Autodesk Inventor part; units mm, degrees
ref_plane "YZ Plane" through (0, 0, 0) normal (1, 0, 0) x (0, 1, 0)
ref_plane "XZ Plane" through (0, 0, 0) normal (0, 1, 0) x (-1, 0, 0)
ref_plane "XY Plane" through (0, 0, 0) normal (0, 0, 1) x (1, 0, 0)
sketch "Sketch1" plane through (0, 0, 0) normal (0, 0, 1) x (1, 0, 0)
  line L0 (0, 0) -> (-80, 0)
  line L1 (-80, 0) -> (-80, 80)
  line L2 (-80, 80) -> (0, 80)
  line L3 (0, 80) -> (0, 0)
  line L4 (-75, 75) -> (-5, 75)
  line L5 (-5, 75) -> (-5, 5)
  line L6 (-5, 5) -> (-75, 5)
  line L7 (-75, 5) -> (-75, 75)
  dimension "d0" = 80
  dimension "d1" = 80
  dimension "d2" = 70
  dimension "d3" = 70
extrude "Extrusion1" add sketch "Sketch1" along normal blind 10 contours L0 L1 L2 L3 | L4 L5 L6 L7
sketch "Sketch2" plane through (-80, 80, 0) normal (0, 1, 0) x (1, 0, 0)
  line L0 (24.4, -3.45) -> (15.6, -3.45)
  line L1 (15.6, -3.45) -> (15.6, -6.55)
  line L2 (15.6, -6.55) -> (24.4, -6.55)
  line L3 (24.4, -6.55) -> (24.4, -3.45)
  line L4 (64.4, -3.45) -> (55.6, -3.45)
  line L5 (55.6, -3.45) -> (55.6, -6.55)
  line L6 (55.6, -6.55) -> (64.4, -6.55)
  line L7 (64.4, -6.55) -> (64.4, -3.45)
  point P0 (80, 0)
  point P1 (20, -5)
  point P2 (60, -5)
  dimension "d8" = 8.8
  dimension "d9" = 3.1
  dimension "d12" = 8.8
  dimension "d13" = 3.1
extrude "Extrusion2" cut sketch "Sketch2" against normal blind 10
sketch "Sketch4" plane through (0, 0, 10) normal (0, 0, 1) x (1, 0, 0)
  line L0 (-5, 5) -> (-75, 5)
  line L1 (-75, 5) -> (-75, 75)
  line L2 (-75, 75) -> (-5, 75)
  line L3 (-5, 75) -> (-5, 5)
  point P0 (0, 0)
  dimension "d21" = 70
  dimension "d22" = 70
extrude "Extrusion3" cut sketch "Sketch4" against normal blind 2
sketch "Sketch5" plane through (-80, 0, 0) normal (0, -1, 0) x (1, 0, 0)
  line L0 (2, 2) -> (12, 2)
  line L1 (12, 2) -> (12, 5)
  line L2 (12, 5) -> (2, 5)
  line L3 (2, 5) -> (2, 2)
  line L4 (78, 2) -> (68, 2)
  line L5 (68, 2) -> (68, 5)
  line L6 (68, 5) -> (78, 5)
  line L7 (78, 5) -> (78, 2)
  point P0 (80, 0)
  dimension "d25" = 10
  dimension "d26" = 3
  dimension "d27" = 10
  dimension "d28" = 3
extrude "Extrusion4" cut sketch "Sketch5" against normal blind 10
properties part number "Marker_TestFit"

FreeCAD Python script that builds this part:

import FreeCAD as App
import Part
import Sketcher

V = App.Vector

doc = App.newDocument("Part")
body = doc.addObject("PartDesign::Body", "Body")

# Sketch on XY plane
sketch1 = body.newObject("Sketcher::SketchObject", "Sketch")
sketch1.AttachmentSupport = (doc.getObject("XY_Plane"), [""])
sketch1.MapMode = "FlatFace"
sketch1.addGeometry([
    Part.LineSegment(V(-80, 0, 0), V(0, 0, 0)),
    Part.LineSegment(V(0, 0, 0), V(0, 80, 0)),
    Part.LineSegment(V(0, 80, 0), V(-80, 80, 0)),
    Part.LineSegment(V(-80, 80, 0), V(-80, 0, 0)),
], False)
sketch1.addConstraint([
    Sketcher.Constraint("Coincident", 0, 2, 1, 1),
    Sketcher.Constraint("Coincident", 1, 2, 2, 1),
    Sketcher.Constraint("Coincident", 2, 2, 3, 1),
    Sketcher.Constraint("Coincident", 3, 2, 0, 1),
    Sketcher.Constraint("Horizontal", 0),
    Sketcher.Constraint("Vertical", 1),
    Sketcher.Constraint("Horizontal", 2),
    Sketcher.Constraint("Vertical", 3),
    Sketcher.Constraint("Coincident", 0, 2, -1, 1),
    Sketcher.Constraint("Equal", 2, 1),
    Sketcher.Constraint("DistanceX", 0, 1, 0, 2, 80.0),
])
pad1 = body.newObject("PartDesign::Pad", "Pad")
pad1.Profile = sketch1
pad1.Length = 10

# Sketch on XZ plane
sketch2 = body.newObject("Sketcher::SketchObject", "Sketch001")
sketch2.AttachmentSupport = (doc.getObject("XZ_Plane"), [""])
sketch2.MapMode = "FlatFace"
sketch2.AttachmentOffset = App.Placement(V(0, 0, -80), App.Rotation())
sketch2.addGeometry([
    Part.LineSegment(V(-55.6, 6.5, 0), V(-55.6, 3.5, 0)),  # 0
    Part.LineSegment(V(-55.6, 3.5, 0), V(-64.4, 3.5, 0)),  # 1
    Part.LineSegment(V(-64.4, 3.5, 0), V(-64.4, 6.5, 0)),  # 2
    Part.LineSegment(V(-64.4, 6.5, 0), V(-55.6, 6.5, 0)),  # 3
    Part.LineSegment(V(-15.6, 6.5, 0), V(-15.6, 3.5, 0)),  # 4
    Part.LineSegment(V(-15.6, 3.5, 0), V(-24.4, 3.5, 0)),  # 5
    Part.LineSegment(V(-24.4, 3.5, 0), V(-24.4, 6.5, 0)),  # 6
    Part.LineSegment(V(-24.4, 6.5, 0), V(-15.6, 6.5, 0)),  # 7
], False)
sketch2.addConstraint([
    Sketcher.Constraint("Coincident", 0, 2, 1, 1),
    Sketcher.Constraint("Coincident", 1, 2, 2, 1),
    Sketcher.Constraint("Coincident", 2, 2, 3, 1),
    Sketcher.Constraint("Coincident", 3, 2, 0, 1),
    Sketcher.Constraint("Coincident", 4, 2, 5, 1),
    Sketcher.Constraint("Coincident", 5, 2, 6, 1),
    Sketcher.Constraint("Coincident", 6, 2, 7, 1),
    Sketcher.Constraint("Coincident", 7, 2, 4, 1),
    Sketcher.Constraint("Vertical", 0),
    Sketcher.Constraint("Horizontal", 1),
    Sketcher.Constraint("Vertical", 2),
    Sketcher.Constraint("Horizontal", 3),
    Sketcher.Constraint("Vertical", 4),
    Sketcher.Constraint("Horizontal", 5),
    Sketcher.Constraint("Vertical", 6),
    Sketcher.Constraint("Horizontal", 7),
    Sketcher.Constraint("Horizontal", 1, 2, 4, 2),
    Sketcher.Constraint("Horizontal", 3, 2, 6, 2),
    Sketcher.Constraint("Equal", 3, 5),
    Sketcher.Constraint("DistanceX", 1, 2, 1, 1, 8.8),
    Sketcher.Constraint("DistanceY", 0, 2, 0, 1, 3.1),
    Sketcher.Constraint("DistanceX", 0, 2, 4, 2, 40.0),
    Sketcher.Constraint("DistanceX", 0, 2, -1, 1, 55.6),
    Sketcher.Constraint("DistanceY", -1, 1, 0, 2, 3.45),
])
pocket1 = body.newObject("PartDesign::Pocket", "Pocket")
pocket1.Profile = sketch2
pocket1.Length = 10
pocket1.Reversed = True

# Sketch on XY plane
sketch3 = body.newObject("Sketcher::SketchObject", "Sketch002")
sketch3.AttachmentSupport = (doc.getObject("XY_Plane"), [""])
sketch3.MapMode = "FlatFace"
sketch3.AttachmentOffset = App.Placement(V(0, 0, 10), App.Rotation())
sketch3.addGeometry([
    Part.LineSegment(V(-75, 5, 0), V(-5, 5, 0)),
    Part.LineSegment(V(-5, 5, 0), V(-5, 75, 0)),
    Part.LineSegment(V(-5, 75, 0), V(-75, 75, 0)),
    Part.LineSegment(V(-75, 75, 0), V(-75, 5, 0)),
], False)
sketch3.addConstraint([
    Sketcher.Constraint("Coincident", 0, 2, 1, 1),
    Sketcher.Constraint("Coincident", 1, 2, 2, 1),
    Sketcher.Constraint("Coincident", 2, 2, 3, 1),
    Sketcher.Constraint("Coincident", 3, 2, 0, 1),
    Sketcher.Constraint("Horizontal", 0),
    Sketcher.Constraint("Vertical", 1),
    Sketcher.Constraint("Horizontal", 2),
    Sketcher.Constraint("Vertical", 3),
    Sketcher.Constraint("Equal", 2, 1),
    Sketcher.Constraint("DistanceX", 0, 1, 0, 2, 70.0),
    Sketcher.Constraint("DistanceX", 0, 2, -1, 1, 5.0),
    Sketcher.Constraint("DistanceY", -1, 1, 0, 2, 5.0),
])
pocket2 = body.newObject("PartDesign::Pocket", "Pocket001")
pocket2.Profile = sketch3
pocket2.Length = 2

# Sketch on XZ plane
sketch4 = body.newObject("Sketcher::SketchObject", "Sketch003")
sketch4.AttachmentSupport = (doc.getObject("XZ_Plane"), [""])
sketch4.MapMode = "FlatFace"
sketch4.addGeometry([
    Part.LineSegment(V(-78, 5, 0), V(-78, 2, 0)),  # 0
    Part.LineSegment(V(-78, 2, 0), V(-68, 2, 0)),  # 1
    Part.LineSegment(V(-68, 2, 0), V(-68, 5, 0)),  # 2
    Part.LineSegment(V(-68, 5, 0), V(-78, 5, 0)),  # 3
    Part.LineSegment(V(-12, 2, 0), V(-2, 2, 0)),  # 4
    Part.LineSegment(V(-2, 2, 0), V(-2, 5, 0)),  # 5
    Part.LineSegment(V(-2, 5, 0), V(-12, 5, 0)),  # 6
    Part.LineSegment(V(-12, 5, 0), V(-12, 2, 0)),  # 7
], False)
sketch4.addConstraint([
    Sketcher.Constraint("Coincident", 0, 2, 1, 1),
    Sketcher.Constraint("Coincident", 1, 2, 2, 1),
    Sketcher.Constraint("Coincident", 2, 2, 3, 1),
    Sketcher.Constraint("Coincident", 3, 2, 0, 1),
    Sketcher.Constraint("Coincident", 4, 2, 5, 1),
    Sketcher.Constraint("Coincident", 5, 2, 6, 1),
    Sketcher.Constraint("Coincident", 6, 2, 7, 1),
    Sketcher.Constraint("Coincident", 7, 2, 4, 1),
    Sketcher.Constraint("Vertical", 0),
    Sketcher.Constraint("Horizontal", 1),
    Sketcher.Constraint("Vertical", 2),
    Sketcher.Constraint("Horizontal", 3),
    Sketcher.Constraint("Horizontal", 4),
    Sketcher.Constraint("Vertical", 5),
    Sketcher.Constraint("Horizontal", 6),
    Sketcher.Constraint("Vertical", 7),
    Sketcher.Constraint("Horizontal", 1, 2, 4, 2),
    Sketcher.Constraint("Horizontal", 3, 2, 5, 2),
    Sketcher.Constraint("Equal", 3, 4),
    Sketcher.Constraint("DistanceX", 1, 1, 1, 2, 10.0),
    Sketcher.Constraint("DistanceY", 0, 2, 0, 1, 3.0),
    Sketcher.Constraint("DistanceX", 0, 2, -1, 1, 78.0),
    Sketcher.Constraint("DistanceY", -1, 1, 0, 2, 2.0),
    Sketcher.Constraint("DistanceX", 4, 2, -1, 1, 2.0),
])
pocket3 = body.newObject("PartDesign::Pocket", "Pocket002")
pocket3.Profile = sketch4
pocket3.Length = 10

doc.recompute()
